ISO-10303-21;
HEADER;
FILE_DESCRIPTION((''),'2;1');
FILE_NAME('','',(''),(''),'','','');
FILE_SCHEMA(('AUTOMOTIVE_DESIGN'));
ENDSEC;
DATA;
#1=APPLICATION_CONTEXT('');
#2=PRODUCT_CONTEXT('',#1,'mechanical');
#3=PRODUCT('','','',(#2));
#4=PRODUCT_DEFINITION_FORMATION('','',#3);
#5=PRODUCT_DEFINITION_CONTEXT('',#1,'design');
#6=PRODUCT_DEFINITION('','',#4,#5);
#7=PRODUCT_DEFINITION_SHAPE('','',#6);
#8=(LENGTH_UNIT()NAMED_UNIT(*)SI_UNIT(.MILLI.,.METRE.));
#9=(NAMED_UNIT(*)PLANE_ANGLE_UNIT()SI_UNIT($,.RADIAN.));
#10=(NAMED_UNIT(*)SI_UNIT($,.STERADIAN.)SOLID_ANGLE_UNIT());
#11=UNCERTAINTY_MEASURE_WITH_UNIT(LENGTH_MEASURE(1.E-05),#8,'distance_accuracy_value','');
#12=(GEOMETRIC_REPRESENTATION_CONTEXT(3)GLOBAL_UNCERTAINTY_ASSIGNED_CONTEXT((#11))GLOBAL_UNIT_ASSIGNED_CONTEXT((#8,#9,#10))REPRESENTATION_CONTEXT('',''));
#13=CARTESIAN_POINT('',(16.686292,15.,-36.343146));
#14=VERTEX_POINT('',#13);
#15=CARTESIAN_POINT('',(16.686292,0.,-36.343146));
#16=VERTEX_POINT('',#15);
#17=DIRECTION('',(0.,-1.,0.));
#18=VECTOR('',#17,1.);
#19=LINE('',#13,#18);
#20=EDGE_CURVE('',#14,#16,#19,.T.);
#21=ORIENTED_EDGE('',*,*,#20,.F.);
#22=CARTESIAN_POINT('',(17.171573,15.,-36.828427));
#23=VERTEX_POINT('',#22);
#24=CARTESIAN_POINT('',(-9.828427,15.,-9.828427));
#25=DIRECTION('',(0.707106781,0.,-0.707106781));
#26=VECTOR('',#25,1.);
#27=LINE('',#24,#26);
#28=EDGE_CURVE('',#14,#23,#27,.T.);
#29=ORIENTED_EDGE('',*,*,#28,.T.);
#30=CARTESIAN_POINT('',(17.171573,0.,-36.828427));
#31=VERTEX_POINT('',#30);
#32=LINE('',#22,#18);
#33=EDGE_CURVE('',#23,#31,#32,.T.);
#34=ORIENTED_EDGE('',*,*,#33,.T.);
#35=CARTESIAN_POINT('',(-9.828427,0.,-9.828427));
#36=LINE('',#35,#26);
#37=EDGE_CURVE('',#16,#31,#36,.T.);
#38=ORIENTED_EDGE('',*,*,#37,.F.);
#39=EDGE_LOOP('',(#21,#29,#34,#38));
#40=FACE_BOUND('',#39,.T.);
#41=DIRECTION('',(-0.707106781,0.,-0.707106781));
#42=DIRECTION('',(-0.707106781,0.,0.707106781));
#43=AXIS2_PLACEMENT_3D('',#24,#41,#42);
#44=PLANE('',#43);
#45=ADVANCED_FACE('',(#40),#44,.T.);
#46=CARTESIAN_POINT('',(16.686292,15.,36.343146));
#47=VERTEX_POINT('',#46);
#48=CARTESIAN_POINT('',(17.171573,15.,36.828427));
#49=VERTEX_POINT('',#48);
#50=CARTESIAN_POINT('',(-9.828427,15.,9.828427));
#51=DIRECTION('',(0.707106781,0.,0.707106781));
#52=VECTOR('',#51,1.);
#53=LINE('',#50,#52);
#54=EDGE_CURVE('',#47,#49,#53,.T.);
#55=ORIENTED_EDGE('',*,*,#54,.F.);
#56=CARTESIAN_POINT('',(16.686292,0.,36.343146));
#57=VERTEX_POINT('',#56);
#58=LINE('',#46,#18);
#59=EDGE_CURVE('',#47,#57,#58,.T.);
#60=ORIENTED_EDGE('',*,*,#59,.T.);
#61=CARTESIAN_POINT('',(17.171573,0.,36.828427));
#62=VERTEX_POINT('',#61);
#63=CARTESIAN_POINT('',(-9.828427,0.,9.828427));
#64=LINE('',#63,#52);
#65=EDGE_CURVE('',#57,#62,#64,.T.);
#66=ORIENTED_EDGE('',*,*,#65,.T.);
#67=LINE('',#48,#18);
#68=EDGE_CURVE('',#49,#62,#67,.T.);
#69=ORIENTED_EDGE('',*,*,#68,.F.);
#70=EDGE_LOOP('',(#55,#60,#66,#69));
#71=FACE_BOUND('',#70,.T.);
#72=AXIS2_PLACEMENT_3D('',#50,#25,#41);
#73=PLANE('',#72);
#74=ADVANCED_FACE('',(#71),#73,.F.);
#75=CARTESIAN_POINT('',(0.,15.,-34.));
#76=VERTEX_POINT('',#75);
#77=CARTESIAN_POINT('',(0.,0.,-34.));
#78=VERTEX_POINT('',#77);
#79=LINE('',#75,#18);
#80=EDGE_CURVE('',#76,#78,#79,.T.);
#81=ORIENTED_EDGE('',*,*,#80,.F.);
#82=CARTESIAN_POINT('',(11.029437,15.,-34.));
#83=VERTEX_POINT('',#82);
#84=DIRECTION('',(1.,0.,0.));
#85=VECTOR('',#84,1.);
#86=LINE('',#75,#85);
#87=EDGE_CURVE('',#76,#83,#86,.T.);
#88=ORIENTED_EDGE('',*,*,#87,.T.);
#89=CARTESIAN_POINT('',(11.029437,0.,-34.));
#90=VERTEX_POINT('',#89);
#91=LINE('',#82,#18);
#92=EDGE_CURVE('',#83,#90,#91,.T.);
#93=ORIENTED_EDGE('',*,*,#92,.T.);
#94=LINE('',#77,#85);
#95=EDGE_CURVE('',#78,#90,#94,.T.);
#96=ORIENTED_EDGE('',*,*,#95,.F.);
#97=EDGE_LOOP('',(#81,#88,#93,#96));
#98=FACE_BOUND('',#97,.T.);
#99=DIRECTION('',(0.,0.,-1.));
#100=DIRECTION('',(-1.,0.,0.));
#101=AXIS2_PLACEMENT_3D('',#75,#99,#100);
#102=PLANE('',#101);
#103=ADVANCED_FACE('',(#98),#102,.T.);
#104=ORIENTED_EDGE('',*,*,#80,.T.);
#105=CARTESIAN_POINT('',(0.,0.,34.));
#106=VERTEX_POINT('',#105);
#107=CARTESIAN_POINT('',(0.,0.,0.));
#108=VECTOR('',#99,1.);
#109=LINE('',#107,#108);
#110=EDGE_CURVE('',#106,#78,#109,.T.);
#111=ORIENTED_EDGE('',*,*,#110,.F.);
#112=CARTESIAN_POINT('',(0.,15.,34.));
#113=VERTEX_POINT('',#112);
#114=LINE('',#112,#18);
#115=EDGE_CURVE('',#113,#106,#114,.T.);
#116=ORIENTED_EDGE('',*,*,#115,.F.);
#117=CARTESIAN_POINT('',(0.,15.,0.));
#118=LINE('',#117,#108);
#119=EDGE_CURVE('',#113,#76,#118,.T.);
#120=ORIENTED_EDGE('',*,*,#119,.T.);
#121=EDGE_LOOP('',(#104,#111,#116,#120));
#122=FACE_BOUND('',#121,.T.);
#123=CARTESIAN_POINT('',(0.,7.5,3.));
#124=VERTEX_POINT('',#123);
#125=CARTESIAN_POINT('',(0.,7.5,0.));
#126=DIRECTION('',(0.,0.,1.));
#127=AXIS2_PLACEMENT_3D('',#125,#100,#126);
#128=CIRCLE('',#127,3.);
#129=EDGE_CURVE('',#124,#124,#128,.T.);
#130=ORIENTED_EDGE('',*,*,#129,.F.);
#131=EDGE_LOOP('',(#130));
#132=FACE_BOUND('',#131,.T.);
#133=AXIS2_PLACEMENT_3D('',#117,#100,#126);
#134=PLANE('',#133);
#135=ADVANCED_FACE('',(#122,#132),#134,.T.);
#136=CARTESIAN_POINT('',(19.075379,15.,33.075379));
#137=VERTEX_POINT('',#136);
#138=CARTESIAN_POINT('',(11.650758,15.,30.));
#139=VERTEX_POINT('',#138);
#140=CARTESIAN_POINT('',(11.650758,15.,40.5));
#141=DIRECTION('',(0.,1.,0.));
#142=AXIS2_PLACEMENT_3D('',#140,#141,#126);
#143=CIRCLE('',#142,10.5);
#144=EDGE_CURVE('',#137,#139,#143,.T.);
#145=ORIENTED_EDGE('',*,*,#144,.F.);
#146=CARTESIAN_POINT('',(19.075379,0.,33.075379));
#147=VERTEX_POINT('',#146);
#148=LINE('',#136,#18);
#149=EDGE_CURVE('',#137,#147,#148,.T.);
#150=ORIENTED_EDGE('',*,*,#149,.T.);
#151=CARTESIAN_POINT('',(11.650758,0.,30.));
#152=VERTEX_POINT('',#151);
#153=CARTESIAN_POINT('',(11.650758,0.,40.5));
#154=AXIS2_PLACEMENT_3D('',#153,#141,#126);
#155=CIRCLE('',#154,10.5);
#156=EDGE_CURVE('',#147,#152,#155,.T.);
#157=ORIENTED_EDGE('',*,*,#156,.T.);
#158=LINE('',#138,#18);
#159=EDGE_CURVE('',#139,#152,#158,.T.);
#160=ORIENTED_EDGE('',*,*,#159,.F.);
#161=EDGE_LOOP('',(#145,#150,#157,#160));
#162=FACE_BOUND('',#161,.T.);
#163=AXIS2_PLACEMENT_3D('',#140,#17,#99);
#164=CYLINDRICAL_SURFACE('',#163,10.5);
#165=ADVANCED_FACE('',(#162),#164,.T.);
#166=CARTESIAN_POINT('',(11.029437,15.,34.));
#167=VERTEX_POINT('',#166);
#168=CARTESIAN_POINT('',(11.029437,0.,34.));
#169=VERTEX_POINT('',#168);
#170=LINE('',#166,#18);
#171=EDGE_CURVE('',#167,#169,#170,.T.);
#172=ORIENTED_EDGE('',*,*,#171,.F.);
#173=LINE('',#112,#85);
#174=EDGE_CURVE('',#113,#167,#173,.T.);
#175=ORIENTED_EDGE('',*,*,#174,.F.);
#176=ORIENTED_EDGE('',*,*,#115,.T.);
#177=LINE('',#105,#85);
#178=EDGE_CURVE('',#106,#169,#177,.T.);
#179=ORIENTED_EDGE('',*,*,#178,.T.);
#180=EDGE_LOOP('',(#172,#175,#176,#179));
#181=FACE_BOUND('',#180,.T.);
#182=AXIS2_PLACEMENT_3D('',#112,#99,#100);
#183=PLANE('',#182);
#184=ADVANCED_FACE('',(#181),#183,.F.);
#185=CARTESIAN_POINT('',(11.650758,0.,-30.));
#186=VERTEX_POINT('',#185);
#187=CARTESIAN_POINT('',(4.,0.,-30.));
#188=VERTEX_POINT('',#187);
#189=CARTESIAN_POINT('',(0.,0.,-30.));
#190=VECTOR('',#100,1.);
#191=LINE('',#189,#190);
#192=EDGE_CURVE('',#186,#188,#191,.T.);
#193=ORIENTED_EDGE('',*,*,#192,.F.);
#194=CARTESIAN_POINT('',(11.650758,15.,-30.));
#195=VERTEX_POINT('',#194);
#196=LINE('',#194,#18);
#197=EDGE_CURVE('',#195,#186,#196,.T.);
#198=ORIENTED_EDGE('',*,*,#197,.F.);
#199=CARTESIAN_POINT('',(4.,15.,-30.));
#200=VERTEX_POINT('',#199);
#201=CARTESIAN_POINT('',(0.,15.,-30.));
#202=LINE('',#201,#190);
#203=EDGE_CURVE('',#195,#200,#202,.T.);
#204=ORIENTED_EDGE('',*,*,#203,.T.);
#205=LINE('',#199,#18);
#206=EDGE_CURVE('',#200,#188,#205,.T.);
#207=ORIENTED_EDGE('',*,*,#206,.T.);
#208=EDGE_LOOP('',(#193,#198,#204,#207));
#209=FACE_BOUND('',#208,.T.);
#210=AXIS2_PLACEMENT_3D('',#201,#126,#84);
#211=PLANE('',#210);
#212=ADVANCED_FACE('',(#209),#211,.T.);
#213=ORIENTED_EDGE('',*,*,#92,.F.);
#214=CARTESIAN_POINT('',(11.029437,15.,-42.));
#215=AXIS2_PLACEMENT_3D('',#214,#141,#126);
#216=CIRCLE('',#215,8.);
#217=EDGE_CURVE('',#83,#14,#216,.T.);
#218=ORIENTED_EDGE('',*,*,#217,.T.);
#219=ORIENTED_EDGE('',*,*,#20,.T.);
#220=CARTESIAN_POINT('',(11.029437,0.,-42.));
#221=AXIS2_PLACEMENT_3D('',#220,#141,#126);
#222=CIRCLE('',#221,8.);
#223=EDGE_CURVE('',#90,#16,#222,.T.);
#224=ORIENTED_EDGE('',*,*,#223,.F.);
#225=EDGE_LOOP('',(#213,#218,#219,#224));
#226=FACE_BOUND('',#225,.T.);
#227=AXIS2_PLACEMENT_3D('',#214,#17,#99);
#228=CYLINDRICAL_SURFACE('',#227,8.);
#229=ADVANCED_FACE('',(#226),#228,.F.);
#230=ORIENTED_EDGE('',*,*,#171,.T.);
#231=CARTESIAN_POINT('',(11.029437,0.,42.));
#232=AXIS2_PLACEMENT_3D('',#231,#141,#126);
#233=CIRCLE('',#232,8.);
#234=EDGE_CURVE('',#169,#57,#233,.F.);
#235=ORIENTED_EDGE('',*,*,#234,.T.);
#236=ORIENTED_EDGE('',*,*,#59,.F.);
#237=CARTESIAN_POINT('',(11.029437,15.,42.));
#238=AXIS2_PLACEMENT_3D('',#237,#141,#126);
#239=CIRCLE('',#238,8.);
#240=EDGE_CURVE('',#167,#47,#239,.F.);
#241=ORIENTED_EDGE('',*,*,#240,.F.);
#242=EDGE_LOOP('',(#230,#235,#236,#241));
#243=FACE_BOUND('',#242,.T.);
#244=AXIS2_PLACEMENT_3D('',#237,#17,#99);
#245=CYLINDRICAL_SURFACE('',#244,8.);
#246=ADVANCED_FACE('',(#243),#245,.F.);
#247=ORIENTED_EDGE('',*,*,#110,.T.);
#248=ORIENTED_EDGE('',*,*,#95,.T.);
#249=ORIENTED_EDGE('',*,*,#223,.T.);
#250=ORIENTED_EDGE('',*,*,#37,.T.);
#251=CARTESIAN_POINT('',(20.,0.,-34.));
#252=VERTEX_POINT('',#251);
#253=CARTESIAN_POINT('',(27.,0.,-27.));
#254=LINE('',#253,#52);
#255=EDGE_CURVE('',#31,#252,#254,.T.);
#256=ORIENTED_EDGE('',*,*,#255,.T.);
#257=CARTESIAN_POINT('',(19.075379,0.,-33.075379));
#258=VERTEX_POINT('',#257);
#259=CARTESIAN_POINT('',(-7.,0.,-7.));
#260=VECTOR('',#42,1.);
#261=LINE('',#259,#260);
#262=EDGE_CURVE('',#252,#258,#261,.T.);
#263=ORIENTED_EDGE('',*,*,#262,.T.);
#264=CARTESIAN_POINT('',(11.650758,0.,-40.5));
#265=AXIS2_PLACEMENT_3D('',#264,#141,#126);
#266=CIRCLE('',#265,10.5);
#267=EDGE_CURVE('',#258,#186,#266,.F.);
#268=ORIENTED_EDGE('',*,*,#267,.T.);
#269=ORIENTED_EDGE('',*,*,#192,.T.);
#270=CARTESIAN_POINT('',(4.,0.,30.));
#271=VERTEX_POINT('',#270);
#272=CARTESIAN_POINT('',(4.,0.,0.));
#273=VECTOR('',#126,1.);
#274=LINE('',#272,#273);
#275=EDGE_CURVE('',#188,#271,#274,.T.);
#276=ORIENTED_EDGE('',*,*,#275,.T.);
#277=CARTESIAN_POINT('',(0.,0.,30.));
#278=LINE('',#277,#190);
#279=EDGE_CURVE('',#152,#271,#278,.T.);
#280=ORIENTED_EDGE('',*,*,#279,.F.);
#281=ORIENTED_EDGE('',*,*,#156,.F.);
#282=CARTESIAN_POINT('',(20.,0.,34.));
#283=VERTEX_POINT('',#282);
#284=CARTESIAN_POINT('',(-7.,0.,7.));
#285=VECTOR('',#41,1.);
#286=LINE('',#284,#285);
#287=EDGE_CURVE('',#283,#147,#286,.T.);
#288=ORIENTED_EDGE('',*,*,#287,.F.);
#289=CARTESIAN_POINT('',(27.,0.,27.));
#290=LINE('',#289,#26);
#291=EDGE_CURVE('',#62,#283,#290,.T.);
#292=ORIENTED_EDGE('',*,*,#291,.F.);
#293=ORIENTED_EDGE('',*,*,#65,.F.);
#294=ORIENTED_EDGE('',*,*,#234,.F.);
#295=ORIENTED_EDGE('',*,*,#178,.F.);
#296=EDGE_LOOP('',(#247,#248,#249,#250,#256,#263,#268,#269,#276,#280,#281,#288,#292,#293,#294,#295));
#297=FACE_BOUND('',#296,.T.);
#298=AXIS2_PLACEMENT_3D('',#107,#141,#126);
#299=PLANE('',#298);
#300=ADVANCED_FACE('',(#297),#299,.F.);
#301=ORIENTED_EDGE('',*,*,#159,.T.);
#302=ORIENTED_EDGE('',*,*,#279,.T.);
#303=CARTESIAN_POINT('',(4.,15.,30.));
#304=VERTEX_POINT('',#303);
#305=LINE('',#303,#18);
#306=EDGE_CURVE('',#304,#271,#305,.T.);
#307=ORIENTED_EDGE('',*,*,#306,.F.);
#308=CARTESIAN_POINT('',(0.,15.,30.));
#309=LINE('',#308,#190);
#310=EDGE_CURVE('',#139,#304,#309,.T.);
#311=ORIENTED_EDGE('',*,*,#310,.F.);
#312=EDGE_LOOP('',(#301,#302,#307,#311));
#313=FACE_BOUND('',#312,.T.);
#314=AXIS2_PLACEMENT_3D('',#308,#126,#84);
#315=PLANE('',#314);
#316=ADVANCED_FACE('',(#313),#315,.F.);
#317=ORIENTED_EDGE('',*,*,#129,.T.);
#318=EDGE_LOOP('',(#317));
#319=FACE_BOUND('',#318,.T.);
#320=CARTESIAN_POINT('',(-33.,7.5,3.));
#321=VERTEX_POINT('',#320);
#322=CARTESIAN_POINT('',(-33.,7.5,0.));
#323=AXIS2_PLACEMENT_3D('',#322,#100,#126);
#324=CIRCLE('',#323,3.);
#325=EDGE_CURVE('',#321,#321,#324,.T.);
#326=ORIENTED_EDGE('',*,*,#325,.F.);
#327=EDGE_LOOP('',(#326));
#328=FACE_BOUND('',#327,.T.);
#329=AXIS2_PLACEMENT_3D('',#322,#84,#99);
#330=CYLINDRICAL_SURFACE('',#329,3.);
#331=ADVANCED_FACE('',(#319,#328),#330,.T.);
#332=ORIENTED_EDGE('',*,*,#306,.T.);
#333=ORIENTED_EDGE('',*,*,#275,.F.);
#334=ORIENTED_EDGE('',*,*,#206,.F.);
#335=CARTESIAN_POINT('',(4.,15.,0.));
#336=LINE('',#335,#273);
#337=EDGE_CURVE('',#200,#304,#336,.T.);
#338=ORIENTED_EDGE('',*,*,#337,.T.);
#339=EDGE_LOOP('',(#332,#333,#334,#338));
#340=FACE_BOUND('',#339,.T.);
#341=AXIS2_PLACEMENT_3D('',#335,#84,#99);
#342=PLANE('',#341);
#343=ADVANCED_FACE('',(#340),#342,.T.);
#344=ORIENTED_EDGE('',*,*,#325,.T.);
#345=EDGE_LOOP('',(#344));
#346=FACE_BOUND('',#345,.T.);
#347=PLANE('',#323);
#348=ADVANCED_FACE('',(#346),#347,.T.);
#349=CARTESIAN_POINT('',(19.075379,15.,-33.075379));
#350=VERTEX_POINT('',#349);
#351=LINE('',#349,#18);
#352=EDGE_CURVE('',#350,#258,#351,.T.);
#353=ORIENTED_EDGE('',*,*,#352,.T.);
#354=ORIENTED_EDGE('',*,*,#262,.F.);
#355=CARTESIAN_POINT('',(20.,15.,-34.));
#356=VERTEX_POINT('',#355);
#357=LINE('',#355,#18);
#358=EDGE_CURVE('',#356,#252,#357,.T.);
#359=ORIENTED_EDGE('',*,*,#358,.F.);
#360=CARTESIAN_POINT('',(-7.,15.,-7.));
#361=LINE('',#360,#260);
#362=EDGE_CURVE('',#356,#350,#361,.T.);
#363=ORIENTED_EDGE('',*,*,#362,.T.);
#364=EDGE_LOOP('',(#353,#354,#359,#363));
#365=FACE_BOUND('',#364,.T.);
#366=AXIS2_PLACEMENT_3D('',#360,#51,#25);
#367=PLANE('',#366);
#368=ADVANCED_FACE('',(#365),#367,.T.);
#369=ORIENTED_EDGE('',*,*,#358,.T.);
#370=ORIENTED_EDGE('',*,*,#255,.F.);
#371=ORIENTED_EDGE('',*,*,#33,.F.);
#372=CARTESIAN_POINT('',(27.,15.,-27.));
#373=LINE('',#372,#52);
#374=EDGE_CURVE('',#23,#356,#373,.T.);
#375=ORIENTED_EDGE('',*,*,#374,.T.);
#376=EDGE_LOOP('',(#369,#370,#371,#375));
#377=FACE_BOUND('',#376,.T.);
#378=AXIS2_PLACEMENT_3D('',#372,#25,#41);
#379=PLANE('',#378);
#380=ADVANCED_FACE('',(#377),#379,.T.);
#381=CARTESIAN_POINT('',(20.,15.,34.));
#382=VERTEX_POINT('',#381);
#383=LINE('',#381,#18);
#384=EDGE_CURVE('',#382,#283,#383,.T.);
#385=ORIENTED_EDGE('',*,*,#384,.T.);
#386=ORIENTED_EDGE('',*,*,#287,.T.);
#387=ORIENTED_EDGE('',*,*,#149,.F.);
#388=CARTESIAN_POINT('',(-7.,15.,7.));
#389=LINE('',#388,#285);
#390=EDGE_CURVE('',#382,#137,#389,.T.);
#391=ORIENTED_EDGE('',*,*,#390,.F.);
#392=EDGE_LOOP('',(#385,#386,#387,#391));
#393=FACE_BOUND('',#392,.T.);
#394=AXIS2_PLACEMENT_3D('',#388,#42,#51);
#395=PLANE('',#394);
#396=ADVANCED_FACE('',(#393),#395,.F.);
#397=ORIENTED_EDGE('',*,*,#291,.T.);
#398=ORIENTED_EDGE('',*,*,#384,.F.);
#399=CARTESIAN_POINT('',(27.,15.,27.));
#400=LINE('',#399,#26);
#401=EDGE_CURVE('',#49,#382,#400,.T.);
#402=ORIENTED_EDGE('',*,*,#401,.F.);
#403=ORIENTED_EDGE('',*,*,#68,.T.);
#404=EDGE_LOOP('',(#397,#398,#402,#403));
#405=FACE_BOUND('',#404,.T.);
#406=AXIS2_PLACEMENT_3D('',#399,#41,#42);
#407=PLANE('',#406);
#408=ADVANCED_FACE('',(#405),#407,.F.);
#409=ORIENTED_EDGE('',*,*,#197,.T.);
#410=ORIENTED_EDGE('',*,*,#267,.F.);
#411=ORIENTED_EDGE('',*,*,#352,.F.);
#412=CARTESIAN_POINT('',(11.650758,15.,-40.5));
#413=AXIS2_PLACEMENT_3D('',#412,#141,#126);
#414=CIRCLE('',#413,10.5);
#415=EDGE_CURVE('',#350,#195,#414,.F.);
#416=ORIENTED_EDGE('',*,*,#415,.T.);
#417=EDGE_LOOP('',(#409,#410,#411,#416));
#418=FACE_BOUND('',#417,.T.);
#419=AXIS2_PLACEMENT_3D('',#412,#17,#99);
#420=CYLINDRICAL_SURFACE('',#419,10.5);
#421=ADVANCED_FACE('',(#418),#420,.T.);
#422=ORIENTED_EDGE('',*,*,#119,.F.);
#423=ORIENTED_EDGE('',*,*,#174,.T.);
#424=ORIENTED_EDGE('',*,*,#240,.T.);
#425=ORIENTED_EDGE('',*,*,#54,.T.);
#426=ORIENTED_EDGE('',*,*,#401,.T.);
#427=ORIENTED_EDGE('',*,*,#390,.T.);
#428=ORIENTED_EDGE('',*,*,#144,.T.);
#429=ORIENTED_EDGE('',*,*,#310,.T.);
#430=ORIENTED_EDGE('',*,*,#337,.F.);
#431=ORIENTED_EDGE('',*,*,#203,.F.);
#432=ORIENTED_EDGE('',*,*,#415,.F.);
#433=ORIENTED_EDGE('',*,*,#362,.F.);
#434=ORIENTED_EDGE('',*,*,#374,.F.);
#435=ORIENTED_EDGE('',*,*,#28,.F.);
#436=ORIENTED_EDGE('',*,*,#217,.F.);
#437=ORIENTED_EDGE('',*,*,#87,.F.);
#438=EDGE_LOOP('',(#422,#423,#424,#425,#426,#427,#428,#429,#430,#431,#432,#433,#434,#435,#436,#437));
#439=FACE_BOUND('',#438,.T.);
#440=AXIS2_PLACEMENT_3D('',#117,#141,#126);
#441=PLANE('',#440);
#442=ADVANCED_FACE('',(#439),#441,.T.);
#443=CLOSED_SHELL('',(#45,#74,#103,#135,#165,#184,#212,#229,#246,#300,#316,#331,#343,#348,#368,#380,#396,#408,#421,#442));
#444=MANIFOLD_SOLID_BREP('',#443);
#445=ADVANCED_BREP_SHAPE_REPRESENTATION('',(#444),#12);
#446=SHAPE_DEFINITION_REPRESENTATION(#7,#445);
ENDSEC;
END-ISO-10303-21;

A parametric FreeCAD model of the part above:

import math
import FreeCAD as App
import Part
import Sketcher
from FreeCAD import Vector
Q = App.Units.Quantity

doc = App.newDocument("Part")
body = doc.addObject("PartDesign::Body", "Body")

# Sketch on XZ plane
sketch1 = body.newObject("Sketcher::SketchObject", "Sketch")
sketch1.AttachmentSupport = (doc.getObject("XZ_Plane"), [""])
sketch1.MapMode = "FlatFace"
sketch1.addGeometry([
    Part.LineSegment(Vector(0, -34, 0), Vector(0, 34, 0)),  # 0
    Part.LineSegment(Vector(0, 34, 0), Vector(11, 34, 0)),  # 1
    Part.ArcOfCircle(Part.Circle(Vector(11, 42, 0), Vector(0, 0, 1), 8), math.radians(-90), math.radians(-45)),  # 2
    Part.LineSegment(Vector(16.7, 36.3, 0), Vector(17.2, 36.8, 0)),  # 3
    Part.LineSegment(Vector(17.2, 36.8, 0), Vector(20, 34, 0)),  # 4
    Part.LineSegment(Vector(20, 34, 0), Vector(19.1, 33.1, 0)),  # 5
    Part.ArcOfCircle(Part.Circle(Vector(11.7, 40.5, 0), Vector(0, 0, 1), 10.5), math.radians(-90), math.radians(-45)),  # 6
    Part.LineSegment(Vector(11.7, 30, 0), Vector(4, 30, 0)),  # 7
    Part.LineSegment(Vector(4, 30, 0), Vector(4, -30, 0)),  # 8
    Part.LineSegment(Vector(4, -30, 0), Vector(11.7, -30, 0)),  # 9
    Part.ArcOfCircle(Part.Circle(Vector(11.7, -40.5, 0), Vector(0, 0, 1), 10.5), math.radians(45), math.radians(90)),  # 10
    Part.LineSegment(Vector(19.1, -33.1, 0), Vector(20, -34, 0)),  # 11
    Part.LineSegment(Vector(20, -34, 0), Vector(17.2, -36.8, 0)),  # 12
    Part.LineSegment(Vector(17.2, -36.8, 0), Vector(16.7, -36.3, 0)),  # 13
    Part.ArcOfCircle(Part.Circle(Vector(11, -42, 0), Vector(0, 0, 1), 8), math.radians(45), math.radians(90)),  # 14
    Part.LineSegment(Vector(11, -34, 0), Vector(0, -34, 0)),  # 15
], False)
sketch1.addConstraint([
    Sketcher.Constraint("Coincident", 0, 2, 1, 1),
    Sketcher.Constraint("Tangent", 1, 2, 2, 1),
    Sketcher.Constraint("Tangent", 2, 2, 3, 1),
    Sketcher.Constraint("Coincident", 3, 2, 4, 1),
    Sketcher.Constraint("Coincident", 4, 2, 5, 1),
    Sketcher.Constraint("Tangent", 5, 2, 6, 2),
    Sketcher.Constraint("Tangent", 6, 1, 7, 1),
    Sketcher.Constraint("Coincident", 7, 2, 8, 1),
    Sketcher.Constraint("Coincident", 8, 2, 9, 1),
    Sketcher.Constraint("Tangent", 9, 2, 10, 2),
    Sketcher.Constraint("Tangent", 10, 1, 11, 1),
    Sketcher.Constraint("Coincident", 11, 2, 12, 1),
    Sketcher.Constraint("Coincident", 12, 2, 13, 1),
    Sketcher.Constraint("Tangent", 13, 2, 14, 1),
    Sketcher.Constraint("Tangent", 14, 2, 15, 1),
    Sketcher.Constraint("Coincident", 15, 2, 0, 1),
    Sketcher.Constraint("Vertical", 0),
    Sketcher.Constraint("Horizontal", 1),
    Sketcher.Constraint("Horizontal", 7),
    Sketcher.Constraint("Vertical", 8),
    Sketcher.Constraint("Horizontal", 9),
    Sketcher.Constraint("Horizontal", 15),
    Sketcher.Constraint("Equal", 6, 10),
    Sketcher.Constraint("Equal", 2, 14),
    Sketcher.Constraint("Symmetric", 0, 2, 15, 2, -1, 1),
    Sketcher.Constraint("Symmetric", 6, 3, 10, 3, -1),
    Sketcher.Constraint("Symmetric", 4, 2, 11, 2, -1),
    Sketcher.Constraint("Symmetric", 3, 2, 12, 2, -1),
    Sketcher.Constraint("Perpendicular", 3, 4),
    Sketcher.Constraint("Perpendicular", 4, 5),
    Sketcher.Constraint("Perpendicular", 5, 11),
    Sketcher.Constraint("Perpendicular", 12, 13),
    Sketcher.Constraint("Horizontal", 1, 2, 4, 2),
    Sketcher.Constraint("Radius", 2, Q("8 mm")),
    Sketcher.Constraint("Radius", 6, Q("10.5 mm")),
    Sketcher.Constraint("DistanceY", 0, 1, 0, 2, Q("68 mm")),
    Sketcher.Constraint("DistanceY", 8, 2, 8, 1, Q("60 mm")),
    Sketcher.Constraint("Distance", 4, Q("4 mm")),
    Sketcher.Constraint("DistanceX", -1, 1, 4, 2, Q("20 mm")),
    Sketcher.Constraint("DistanceX", -1, 1, 7, 2, Q("4 mm")),
])
pad1 = body.newObject("PartDesign::Pad", "Pad")
pad1.Profile = sketch1
pad1.Length = 15
pad1.Reversed = True

# Sketch on YZ plane
sketch2 = body.newObject("Sketcher::SketchObject", "Sketch001")
sketch2.AttachmentSupport = (doc.getObject("YZ_Plane"), [""])
sketch2.MapMode = "FlatFace"
sketch2.addGeometry(Part.Circle(Vector(7.5, 0, 0), Vector(0, 0, 1), 3), False)
sketch2.addConstraint([
    Sketcher.Constraint("PointOnObject", 0, 3, -1),
    Sketcher.Constraint("Diameter", 0, Q("6 mm")),
    Sketcher.Constraint("DistanceX", -1, 1, 0, 3, Q("7.5 mm")),
])
pad2 = body.newObject("PartDesign::Pad", "Pad001")
pad2.Profile = sketch2
pad2.Length = 33
pad2.Reversed = True

doc.recompute()
